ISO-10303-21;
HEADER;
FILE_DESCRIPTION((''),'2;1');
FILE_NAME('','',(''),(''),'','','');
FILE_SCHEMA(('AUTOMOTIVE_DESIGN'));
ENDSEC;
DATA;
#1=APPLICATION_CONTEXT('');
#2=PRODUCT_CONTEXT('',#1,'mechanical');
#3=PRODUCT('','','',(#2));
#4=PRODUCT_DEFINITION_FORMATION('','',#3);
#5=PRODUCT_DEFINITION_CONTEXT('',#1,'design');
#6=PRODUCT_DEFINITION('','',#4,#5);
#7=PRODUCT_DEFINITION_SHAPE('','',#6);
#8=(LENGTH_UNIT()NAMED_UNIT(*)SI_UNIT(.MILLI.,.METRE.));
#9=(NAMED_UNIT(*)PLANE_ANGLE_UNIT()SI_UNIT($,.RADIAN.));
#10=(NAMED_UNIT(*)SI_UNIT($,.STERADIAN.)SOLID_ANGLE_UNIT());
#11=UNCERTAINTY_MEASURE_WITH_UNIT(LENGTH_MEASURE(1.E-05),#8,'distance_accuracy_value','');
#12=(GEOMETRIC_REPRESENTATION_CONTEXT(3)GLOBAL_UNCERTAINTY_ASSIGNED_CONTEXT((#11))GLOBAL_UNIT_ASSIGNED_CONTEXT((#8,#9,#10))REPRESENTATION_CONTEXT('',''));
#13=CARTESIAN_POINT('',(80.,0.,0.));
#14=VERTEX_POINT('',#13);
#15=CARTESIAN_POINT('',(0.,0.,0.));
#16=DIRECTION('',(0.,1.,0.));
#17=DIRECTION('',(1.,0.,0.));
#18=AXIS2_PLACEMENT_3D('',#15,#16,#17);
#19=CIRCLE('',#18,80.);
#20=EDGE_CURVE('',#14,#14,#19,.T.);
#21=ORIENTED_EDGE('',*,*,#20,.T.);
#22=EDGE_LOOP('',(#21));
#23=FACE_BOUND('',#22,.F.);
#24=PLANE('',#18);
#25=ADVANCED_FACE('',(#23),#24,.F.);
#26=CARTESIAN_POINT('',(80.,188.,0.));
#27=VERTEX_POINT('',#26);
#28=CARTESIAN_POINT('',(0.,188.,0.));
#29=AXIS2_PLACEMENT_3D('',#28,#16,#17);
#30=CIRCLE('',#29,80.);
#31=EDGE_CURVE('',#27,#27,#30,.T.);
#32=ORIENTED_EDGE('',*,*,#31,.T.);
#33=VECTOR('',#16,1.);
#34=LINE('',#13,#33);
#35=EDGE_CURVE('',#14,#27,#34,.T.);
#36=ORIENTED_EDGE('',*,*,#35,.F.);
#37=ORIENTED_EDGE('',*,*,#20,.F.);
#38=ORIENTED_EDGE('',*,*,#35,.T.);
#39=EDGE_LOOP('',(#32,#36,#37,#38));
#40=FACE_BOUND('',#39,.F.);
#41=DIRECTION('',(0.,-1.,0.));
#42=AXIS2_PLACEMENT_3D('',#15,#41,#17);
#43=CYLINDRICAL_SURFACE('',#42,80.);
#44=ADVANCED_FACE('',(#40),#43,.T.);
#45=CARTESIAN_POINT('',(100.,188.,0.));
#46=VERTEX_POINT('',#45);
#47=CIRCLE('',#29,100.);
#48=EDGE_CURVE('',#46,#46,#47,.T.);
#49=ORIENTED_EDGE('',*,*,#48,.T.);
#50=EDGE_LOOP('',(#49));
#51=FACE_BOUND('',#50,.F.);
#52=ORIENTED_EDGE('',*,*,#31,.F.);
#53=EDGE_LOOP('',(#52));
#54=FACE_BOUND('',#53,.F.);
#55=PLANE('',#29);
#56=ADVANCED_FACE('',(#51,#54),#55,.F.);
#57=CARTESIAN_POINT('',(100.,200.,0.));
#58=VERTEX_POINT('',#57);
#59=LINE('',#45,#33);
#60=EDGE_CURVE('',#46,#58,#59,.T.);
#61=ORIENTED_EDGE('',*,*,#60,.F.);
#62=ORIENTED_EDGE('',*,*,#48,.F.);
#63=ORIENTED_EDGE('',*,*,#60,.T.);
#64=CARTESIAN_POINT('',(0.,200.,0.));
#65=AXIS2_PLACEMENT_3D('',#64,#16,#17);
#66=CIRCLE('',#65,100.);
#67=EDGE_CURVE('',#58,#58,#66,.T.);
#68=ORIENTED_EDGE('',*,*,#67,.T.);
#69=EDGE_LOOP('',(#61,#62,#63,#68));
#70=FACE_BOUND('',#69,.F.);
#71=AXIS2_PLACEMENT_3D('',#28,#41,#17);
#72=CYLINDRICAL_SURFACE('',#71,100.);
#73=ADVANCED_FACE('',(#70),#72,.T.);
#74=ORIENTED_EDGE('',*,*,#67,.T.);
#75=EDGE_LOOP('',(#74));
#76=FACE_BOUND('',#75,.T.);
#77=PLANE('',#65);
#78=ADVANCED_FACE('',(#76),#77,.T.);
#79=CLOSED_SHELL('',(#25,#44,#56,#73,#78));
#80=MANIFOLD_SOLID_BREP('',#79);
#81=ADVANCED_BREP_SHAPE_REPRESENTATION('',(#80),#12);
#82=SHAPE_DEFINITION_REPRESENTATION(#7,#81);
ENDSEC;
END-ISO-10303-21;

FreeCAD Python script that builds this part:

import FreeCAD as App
import Part
import Sketcher

doc = App.newDocument("Part")
body = doc.addObject("PartDesign::Body", "Body")

# Sketch on XZ plane
sketch1 = doc.addObject("Sketcher::SketchObject", "Sketch")
body.addObject(sketch1)
sketch1.AttachmentSupport = (doc.XZ_Plane, [""])
sketch1.MapMode = "FlatFace"
sketch1.addGeometry(Part.Circle(App.Vector(0, 0, 0), App.Vector(0, 0, 1), 80), False)
sketch1.addConstraint(Sketcher.Constraint("Coincident", 0, 3, -1, 1))
sketch1.addConstraint(Sketcher.Constraint("Diameter", 0, 160.0))
pad1 = doc.addObject("PartDesign::Pad", "Pad")
body.addObject(pad1)
pad1.Profile = sketch1
pad1.Length = 188
pad1.Reversed = True

# Sketch on XZ plane
sketch2 = doc.addObject("Sketcher::SketchObject", "Sketch001")
body.addObject(sketch2)
sketch2.AttachmentSupport = (doc.XZ_Plane, [""])
sketch2.MapMode = "FlatFace"
sketch2.AttachmentOffset = App.Placement(App.Vector(0, 0, -188), App.Rotation())
sketch2.addGeometry(Part.Circle(App.Vector(0, 0, 0), App.Vector(0, 0, 1), 100), False)
sketch2.addConstraint(Sketcher.Constraint("Coincident", 0, 3, -1, 1))
sketch2.addConstraint(Sketcher.Constraint("Diameter", 0, 200.0))
pad2 = doc.addObject("PartDesign::Pad", "Pad001")
body.addObject(pad2)
pad2.Profile = sketch2
pad2.Length = 12
pad2.Reversed = True

doc.recompute()
